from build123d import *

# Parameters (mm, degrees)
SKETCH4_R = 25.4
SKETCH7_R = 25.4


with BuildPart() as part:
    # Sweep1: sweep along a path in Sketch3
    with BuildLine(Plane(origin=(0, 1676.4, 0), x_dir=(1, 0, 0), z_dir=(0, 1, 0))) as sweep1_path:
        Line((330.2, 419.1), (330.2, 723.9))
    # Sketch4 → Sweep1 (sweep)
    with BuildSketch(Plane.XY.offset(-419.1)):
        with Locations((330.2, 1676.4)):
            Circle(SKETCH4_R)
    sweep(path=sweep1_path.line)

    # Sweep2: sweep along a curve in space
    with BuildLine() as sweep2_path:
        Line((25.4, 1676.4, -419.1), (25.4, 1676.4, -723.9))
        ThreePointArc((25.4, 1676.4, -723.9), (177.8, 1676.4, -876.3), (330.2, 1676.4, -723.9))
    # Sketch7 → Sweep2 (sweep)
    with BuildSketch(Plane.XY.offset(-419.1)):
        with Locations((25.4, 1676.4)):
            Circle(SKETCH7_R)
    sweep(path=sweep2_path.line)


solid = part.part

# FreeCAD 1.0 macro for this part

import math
import FreeCAD as App
import Part
import Sketcher
Q = App.Units.Quantity

doc = App.newDocument("Part")
body = doc.addObject("PartDesign::Body", "Body")

# Sketch on XY plane
sketch1 = doc.addObject("Sketcher::SketchObject", "Sketch")
body.addObject(sketch1)
sketch1.AttachmentSupport = (doc.XY_Plane, [""])
sketch1.MapMode = "FlatFace"
sketch1.AttachmentOffset = App.Placement(App.Vector(0, 0, -16.5 * 25.4), App.Rotation())
sketch1.addGeometry(Part.Circle(App.Vector(330.2, 1676.4, 0), App.Vector(0, 0, 1), 25.4), False)
sketch1.addConstraint(Sketcher.Constraint("Diameter", 0, Q("2 in")))
sketch1.addConstraint(Sketcher.Constraint("DistanceX", -1, 1, 0, 3, Q("13 in")))
sketch1.addConstraint(Sketcher.Constraint("DistanceY", -1, 1, 0, 3, Q("66 in")))

# Sketch on XZ plane
sketch2 = doc.addObject("Sketcher::SketchObject", "Sketch001")
body.addObject(sketch2)
sketch2.AttachmentSupport = (doc.XZ_Plane, [""])
sketch2.MapMode = "FlatFace"
sketch2.AttachmentOffset = App.Placement(App.Vector(0, 0, -66 * 25.4), App.Rotation())
sketch2.addGeometry(Part.LineSegment(App.Vector(330.2, -419.1, 0), App.Vector(330.2, -723.9, 0)), False)
sketch2.addConstraint(Sketcher.Constraint("Vertical", 0))
sketch2.addConstraint(Sketcher.Constraint("DistanceY", 0, 2, 0, 1, Q("12 in")))
sketch2.addConstraint(Sketcher.Constraint("DistanceX", -1, 1, 0, 1, Q("13 in")))
sketch2.addConstraint(Sketcher.Constraint("DistanceY", 0, 1, -1, 1, Q("16.5 in")))
doc.recompute()

additivepipe = doc.addObject("PartDesign::AdditivePipe", "AdditivePipe")
body.addObject(additivepipe)
additivepipe.Profile = sketch1
additivepipe.Spine = (sketch2, ["Edge1"])

# Sketch on XY plane
sketch3 = doc.addObject("Sketcher::SketchObject", "Sketch002")
body.addObject(sketch3)
sketch3.AttachmentSupport = (doc.XY_Plane, [""])
sketch3.MapMode = "FlatFace"
sketch3.AttachmentOffset = App.Placement(App.Vector(0, 0, -16.5 * 25.4), App.Rotation())
sketch3.addGeometry(Part.Circle(App.Vector(25.4, 1676.4, 0), App.Vector(0, 0, 1), 25.4), False)
sketch3.addConstraint(Sketcher.Constraint("Diameter", 0, Q("2 in")))
sketch3.addConstraint(Sketcher.Constraint("DistanceX", -1, 1, 0, 3, Q("1 in")))
sketch3.addConstraint(Sketcher.Constraint("DistanceY", -1, 1, 0, 3, Q("66 in")))

# Sketch on XZ plane
sketch4 = doc.addObject("Sketcher::SketchObject", "Sketch003")
body.addObject(sketch4)
sketch4.AttachmentSupport = (doc.XZ_Plane, [""])
sketch4.MapMode = "FlatFace"
sketch4.AttachmentOffset = App.Placement(App.Vector(0, 0, -66 * 25.4), App.Rotation())
sketch4.addGeometry(Part.LineSegment(App.Vector(25.4, -419.1, 0), App.Vector(25.4, -723.9, 0)), False)
sketch4.addGeometry(Part.ArcOfCircle(Part.Circle(App.Vector(177.8, -723.9, 0), App.Vector(0, 0, 1), 152.4), math.radians(180), math.radians(360)), False)
sketch4.addConstraint(Sketcher.Constraint("Tangent", 0, 2, 1, 1))
sketch4.addConstraint(Sketcher.Constraint("Vertical", 0))
sketch4.addConstraint(Sketcher.Constraint("Horizontal", 0, 2, 1, 2))
sketch4.addConstraint(Sketcher.Constraint("Radius", 1, Q("6 in")))
sketch4.addConstraint(Sketcher.Constraint("DistanceY", 0, 2, 0, 1, Q("12 in")))
sketch4.addConstraint(Sketcher.Constraint("DistanceX", -1, 1, 1, 3, Q("7 in")))
sketch4.addConstraint(Sketcher.Constraint("DistanceY", 1, 3, -1, 1, Q("28.5 in")))
doc.recompute()

additivepipe2 = doc.addObject("PartDesign::AdditivePipe", "AdditivePipe001")
body.addObject(additivepipe2)
additivepipe2.Profile = sketch3
additivepipe2.Spine = (sketch4, ["Edge1", "Edge2"])

doc.recompute()
